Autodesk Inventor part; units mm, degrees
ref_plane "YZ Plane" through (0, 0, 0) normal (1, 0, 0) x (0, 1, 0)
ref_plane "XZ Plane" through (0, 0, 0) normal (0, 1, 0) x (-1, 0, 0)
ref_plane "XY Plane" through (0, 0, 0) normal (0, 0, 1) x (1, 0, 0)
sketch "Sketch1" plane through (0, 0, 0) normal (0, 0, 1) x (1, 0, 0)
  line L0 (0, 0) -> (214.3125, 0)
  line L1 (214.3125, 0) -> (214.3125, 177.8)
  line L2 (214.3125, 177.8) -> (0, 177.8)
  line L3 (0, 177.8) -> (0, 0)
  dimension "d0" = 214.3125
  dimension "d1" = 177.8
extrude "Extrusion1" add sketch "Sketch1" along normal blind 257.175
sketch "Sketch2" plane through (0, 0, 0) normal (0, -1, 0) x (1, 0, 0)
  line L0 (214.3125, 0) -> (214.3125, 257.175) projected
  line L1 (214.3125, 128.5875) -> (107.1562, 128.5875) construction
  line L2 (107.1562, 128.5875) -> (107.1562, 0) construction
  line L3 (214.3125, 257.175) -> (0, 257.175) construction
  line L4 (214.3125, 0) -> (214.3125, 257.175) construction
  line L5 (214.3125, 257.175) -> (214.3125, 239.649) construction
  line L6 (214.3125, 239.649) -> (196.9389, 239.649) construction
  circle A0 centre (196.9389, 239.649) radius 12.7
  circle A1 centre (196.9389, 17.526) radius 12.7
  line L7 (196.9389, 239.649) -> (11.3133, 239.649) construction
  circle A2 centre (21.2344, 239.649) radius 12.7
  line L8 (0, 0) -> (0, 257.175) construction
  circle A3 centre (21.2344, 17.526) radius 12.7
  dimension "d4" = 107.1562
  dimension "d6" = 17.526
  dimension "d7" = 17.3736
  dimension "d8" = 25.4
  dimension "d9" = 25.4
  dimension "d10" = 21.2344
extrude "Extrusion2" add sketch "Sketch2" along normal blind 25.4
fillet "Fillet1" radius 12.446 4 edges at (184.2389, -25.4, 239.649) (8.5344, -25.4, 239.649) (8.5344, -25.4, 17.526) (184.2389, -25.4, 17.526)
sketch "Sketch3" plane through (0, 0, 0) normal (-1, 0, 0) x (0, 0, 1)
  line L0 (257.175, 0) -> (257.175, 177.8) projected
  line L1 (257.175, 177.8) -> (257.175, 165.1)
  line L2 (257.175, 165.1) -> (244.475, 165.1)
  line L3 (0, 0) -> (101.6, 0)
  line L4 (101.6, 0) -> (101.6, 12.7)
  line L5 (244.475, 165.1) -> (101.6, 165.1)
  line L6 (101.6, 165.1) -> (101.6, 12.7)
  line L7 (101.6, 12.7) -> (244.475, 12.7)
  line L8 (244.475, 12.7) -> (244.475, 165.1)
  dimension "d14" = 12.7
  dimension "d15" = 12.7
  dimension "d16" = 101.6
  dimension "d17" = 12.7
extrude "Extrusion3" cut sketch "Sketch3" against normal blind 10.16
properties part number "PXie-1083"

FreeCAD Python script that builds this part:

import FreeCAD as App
import Part
import Sketcher

V = App.Vector
Q = App.Units.Quantity


def edges_at(feature, points):
    """Names of the edges that pass closest to the given points."""
    edges = feature.Shape.Edges
    near = lambda p: min(range(len(edges)), key=lambda i: edges[i].distToShape(Part.Vertex(*p))[0])
    return sorted({f"Edge{near(p) + 1}" for p in points})


def add_polygon(sketch, points):
    """Adds a closed chain of lines whose ends are joined by coincident constraints."""
    first, n = sketch.GeometryCount, len(points)
    for a, b in zip(points, points[1:] + points[:1]):
        sketch.addGeometry(Part.LineSegment(App.Vector(*a, 0), App.Vector(*b, 0)), False)
    for i in range(n):
        sketch.addConstraint(Sketcher.Constraint("Coincident", first + i, 2, first + (i + 1) % n, 1))

doc = App.newDocument("Part")
body = doc.addObject("PartDesign::Body", "Body")

sketch1 = body.newObject("Sketcher::SketchObject", "Sketch")
sketch1.AttachmentSupport = (doc.getObject("XY_Plane"), [""])
sketch1.MapMode = "FlatFace"
add_polygon(sketch1, [(0, 178), (0, 0), (214, 0), (214, 178)])
sketch1.addConstraint(Sketcher.Constraint("Vertical", 0))
sketch1.addConstraint(Sketcher.Constraint("Horizontal", 1))
sketch1.addConstraint(Sketcher.Constraint("Vertical", 2))
sketch1.addConstraint(Sketcher.Constraint("Horizontal", 3))
sketch1.addConstraint(Sketcher.Constraint("Coincident", 0, 2, -1, 1))
sketch1.addConstraint(Sketcher.Constraint("DistanceY", 0, 2, 0, 1, Q("7 in")))
sketch1.addConstraint(Sketcher.Constraint("DistanceX", 1, 1, 1, 2, Q("8.4375 in")))
pad1 = body.newObject("PartDesign::Pad", "Pad")
pad1.Profile = sketch1
pad1.Length = Q("10.125 in")

sketch2 = body.newObject("Sketcher::SketchObject", "Sketch001")
sketch2.AttachmentSupport = (doc.getObject("XZ_Plane"), [""])
sketch2.MapMode = "FlatFace"
sketch2.addGeometry(Part.Circle(V(197, 240, 0), V(0, 0, 1), 13), False)
sketch2.addGeometry(Part.Circle(V(197, 18, 0), V(0, 0, 1), 13), False)
sketch2.addGeometry(Part.Circle(V(21, 240, 0), V(0, 0, 1), 13), False)
sketch2.addGeometry(Part.Circle(V(21, 18, 0), V(0, 0, 1), 13), False)
sketch2.addConstraint(Sketcher.Constraint("Equal", 0, 1))
sketch2.addConstraint(Sketcher.Constraint("Equal", 1, 2))
sketch2.addConstraint(Sketcher.Constraint("Equal", 2, 3))
sketch2.addConstraint(Sketcher.Constraint("Horizontal", 0, 3, 2, 3))
sketch2.addConstraint(Sketcher.Constraint("Horizontal", 1, 3, 3, 3))
sketch2.addConstraint(Sketcher.Constraint("Vertical", 0, 3, 1, 3))
sketch2.addConstraint(Sketcher.Constraint("Vertical", 2, 3, 3, 3))
sketch2.addConstraint(Sketcher.Constraint("Diameter", 0, Q("1 in")))
sketch2.addConstraint(Sketcher.Constraint("DistanceY", -1, 1, 1, 3, Q("0.69 in")))
sketch2.addConstraint(Sketcher.Constraint("DistanceX", -1, 1, 2, 3, Q("0.836 in")))
sketch2.addConstraint(Sketcher.Constraint("DistanceY", -1, 1, 0, 3, Q("9.435 in")))
sketch2.addConstraint(Sketcher.Constraint("DistanceX", -1, 1, 0, 3, Q("7.7535 in")))
pad2 = body.newObject("PartDesign::Pad", "Pad001")
pad2.Profile = sketch2
pad2.Length = Q("1 in")
doc.recompute()

fillet = body.newObject("PartDesign::Fillet", "Fillet")
fillet.Base = (pad2, edges_at(pad2, [
    (184.239, -25.4, 239.649),
    (8.534, -25.4, 239.649),
    (8.534, -25.4, 17.526),
    (184.239, -25.4, 17.526),
]))
fillet.Radius = Q("0.49 in")

sketch3 = body.newObject("Sketcher::SketchObject", "Sketch002")
sketch3.AttachmentSupport = (doc.getObject("YZ_Plane"), [""])
sketch3.MapMode = "FlatFace"
add_polygon(sketch3, [(13, 244), (165, 244), (165, 102), (13, 102)])
sketch3.addConstraint(Sketcher.Constraint("Horizontal", 0))
sketch3.addConstraint(Sketcher.Constraint("Vertical", 1))
sketch3.addConstraint(Sketcher.Constraint("Horizontal", 2))
sketch3.addConstraint(Sketcher.Constraint("Vertical", 3))
sketch3.addConstraint(Sketcher.Constraint("DistanceY", -1, 1, 1, 2, Q("4 in")))
sketch3.addConstraint(Sketcher.Constraint("DistanceX", -1, 1, 2, 2, Q("0.5 in")))
sketch3.addConstraint(Sketcher.Constraint("DistanceX", 0, 1, 0, 2, Q("6 in")))
sketch3.addConstraint(Sketcher.Constraint("DistanceY", 1, 2, 1, 1, Q("5.625 in")))
pocket1 = body.newObject("PartDesign::Pocket", "Pocket")
pocket1.Profile = sketch3
pocket1.Length = Q("0.4 in")
pocket1.Reversed = True

doc.recompute()
